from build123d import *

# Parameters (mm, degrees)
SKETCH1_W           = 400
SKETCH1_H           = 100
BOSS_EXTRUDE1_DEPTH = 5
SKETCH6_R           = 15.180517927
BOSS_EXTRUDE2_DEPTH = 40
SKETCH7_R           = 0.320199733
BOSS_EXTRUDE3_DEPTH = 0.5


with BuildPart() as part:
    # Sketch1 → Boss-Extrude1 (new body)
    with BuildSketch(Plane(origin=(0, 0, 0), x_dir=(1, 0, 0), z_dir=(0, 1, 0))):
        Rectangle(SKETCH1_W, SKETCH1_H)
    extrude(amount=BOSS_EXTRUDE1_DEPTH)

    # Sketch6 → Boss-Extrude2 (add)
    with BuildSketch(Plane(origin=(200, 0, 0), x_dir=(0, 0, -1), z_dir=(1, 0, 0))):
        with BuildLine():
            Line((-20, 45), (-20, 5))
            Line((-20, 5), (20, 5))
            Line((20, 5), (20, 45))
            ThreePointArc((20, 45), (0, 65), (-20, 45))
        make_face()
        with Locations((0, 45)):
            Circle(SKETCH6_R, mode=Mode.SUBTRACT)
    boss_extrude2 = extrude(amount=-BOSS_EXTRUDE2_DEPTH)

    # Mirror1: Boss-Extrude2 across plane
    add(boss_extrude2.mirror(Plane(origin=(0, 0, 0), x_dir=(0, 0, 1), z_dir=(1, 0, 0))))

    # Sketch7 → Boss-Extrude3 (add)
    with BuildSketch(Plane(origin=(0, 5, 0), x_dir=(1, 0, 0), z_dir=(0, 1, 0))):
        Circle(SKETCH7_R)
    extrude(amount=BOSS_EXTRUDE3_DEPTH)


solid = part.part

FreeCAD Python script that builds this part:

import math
import FreeCAD as App
import Part
import Sketcher
Q = App.Units.Quantity


def add_polygon(sketch, points):
    """Adds a closed chain of lines whose ends are joined by coincident constraints."""
    first, n = sketch.GeometryCount, len(points)
    for a, b in zip(points, points[1:] + points[:1]):
        sketch.addGeometry(Part.LineSegment(App.Vector(*a, 0), App.Vector(*b, 0)), False)
    for i in range(n):
        sketch.addConstraint(Sketcher.Constraint("Coincident", first + i, 2, first + (i + 1) % n, 1))

doc = App.newDocument("Part")
body = doc.addObject("PartDesign::Body", "Body")

sketch1 = body.newObject("Sketcher::SketchObject", "Sketch")
sketch1.AttachmentSupport = (doc.getObject("XZ_Plane"), [""])
sketch1.MapMode = "FlatFace"
add_polygon(sketch1, [(-200, -50), (-200, 50), (200, 50), (200, -50)])
sketch1.addConstraint(Sketcher.Constraint("Vertical", 0))
sketch1.addConstraint(Sketcher.Constraint("Horizontal", 1))
sketch1.addConstraint(Sketcher.Constraint("Vertical", 2))
sketch1.addConstraint(Sketcher.Constraint("Horizontal", 3))
sketch1.addConstraint(Sketcher.Constraint("Symmetric", 0, 2, 2, 2, -1, 1))
sketch1.addConstraint(Sketcher.Constraint("DistanceX", 1, 1, 1, 2, Q("400 mm")))
sketch1.addConstraint(Sketcher.Constraint("DistanceY", 0, 1, 0, 2, Q("100 mm")))
pad1 = body.newObject("PartDesign::Pad", "Pad")
pad1.Profile = sketch1
pad1.Length = 5
pad1.Reversed = True

sketch2 = body.newObject("Sketcher::SketchObject", "Sketch001")
sketch2.AttachmentSupport = (doc.getObject("YZ_Plane"), [""])
sketch2.MapMode = "FlatFace"
sketch2.AttachmentOffset = App.Placement(App.Vector(0, 0, 200), App.Rotation())
sketch2.addGeometry(Part.LineSegment(App.Vector(45, 20, 0), App.Vector(5, 20, 0)), False)
sketch2.addGeometry(Part.LineSegment(App.Vector(5, 20, 0), App.Vector(5, -20, 0)), False)
sketch2.addGeometry(Part.LineSegment(App.Vector(5, -20, 0), App.Vector(45, -20, 0)), False)
sketch2.addGeometry(Part.ArcOfCircle(Part.Circle(App.Vector(45, 0, 0), App.Vector(0, 0, 1), 20), math.radians(-90), math.radians(90)), False)
sketch2.addGeometry(Part.Circle(App.Vector(45, 0, 0), App.Vector(0, 0, 1), 15), False)
sketch2.addConstraint(Sketcher.Constraint("Coincident", 0, 2, 1, 1))
sketch2.addConstraint(Sketcher.Constraint("Coincident", 1, 2, 2, 1))
sketch2.addConstraint(Sketcher.Constraint("Tangent", 2, 2, 3, 1))
sketch2.addConstraint(Sketcher.Constraint("Tangent", 3, 2, 0, 1))
sketch2.addConstraint(Sketcher.Constraint("Horizontal", 0))
sketch2.addConstraint(Sketcher.Constraint("Vertical", 1))
sketch2.addConstraint(Sketcher.Constraint("Horizontal", 2))
sketch2.addConstraint(Sketcher.Constraint("Coincident", 4, 3, 3, 3))
sketch2.addConstraint(Sketcher.Constraint("PointOnObject", 3, 3, -1))
sketch2.addConstraint(Sketcher.Constraint("Equal", 2, 1))
sketch2.addConstraint(Sketcher.Constraint("Radius", 3, Q("20 mm")))
sketch2.addConstraint(Sketcher.Constraint("DistanceX", -1, 1, 3, 3, Q("45 mm")))
sketch2.addConstraint(Sketcher.Constraint("Diameter", 4, Q("30.361036 mm")))
pad2 = body.newObject("PartDesign::Pad", "Pad001")
pad2.Profile = sketch2
pad2.Length = 40
pad2.Reversed = True
doc.recompute()

mirrored = body.newObject("PartDesign::Mirrored", "Mirrored")
mirrored.Originals = [pad2]
mirrored.MirrorPlane = (doc.getObject("YZ_Plane"), [""])
body.Tip = mirrored

sketch3 = body.newObject("Sketcher::SketchObject", "Sketch002")
sketch3.AttachmentSupport = (doc.getObject("XZ_Plane"), [""])
sketch3.MapMode = "FlatFace"
sketch3.AttachmentOffset = App.Placement(App.Vector(0, 0, -5), App.Rotation())
sketch3.addGeometry(Part.Circle(App.Vector(0, 0, 0), App.Vector(0, 0, 1), 0.32), False)
sketch3.addConstraint(Sketcher.Constraint("Coincident", 0, 3, -1, 1))
sketch3.addConstraint(Sketcher.Constraint("Diameter", 0, Q("0.640399 mm")))
pad3 = body.newObject("PartDesign::Pad", "Pad002")
pad3.Profile = sketch3
pad3.Length = 0.5
pad3.Reversed = True

doc.recompute()
